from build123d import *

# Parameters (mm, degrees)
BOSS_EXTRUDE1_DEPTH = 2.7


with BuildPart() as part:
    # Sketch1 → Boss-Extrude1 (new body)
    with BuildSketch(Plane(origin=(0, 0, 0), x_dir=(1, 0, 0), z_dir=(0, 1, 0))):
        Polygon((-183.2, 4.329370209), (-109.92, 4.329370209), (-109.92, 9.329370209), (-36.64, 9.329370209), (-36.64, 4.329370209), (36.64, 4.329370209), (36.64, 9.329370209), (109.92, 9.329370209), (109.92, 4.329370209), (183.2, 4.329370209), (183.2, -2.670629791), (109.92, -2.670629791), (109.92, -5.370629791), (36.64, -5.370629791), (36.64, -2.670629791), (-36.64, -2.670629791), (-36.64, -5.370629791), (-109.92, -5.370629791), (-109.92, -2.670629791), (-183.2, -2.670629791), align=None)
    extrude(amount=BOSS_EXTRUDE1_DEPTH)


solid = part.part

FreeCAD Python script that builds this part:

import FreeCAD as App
import Part
import Sketcher
from FreeCAD import Vector

doc = App.newDocument("Part")
body = doc.addObject("PartDesign::Body", "Body")

# Sketch on XZ plane
sketch1 = body.newObject("Sketcher::SketchObject", "Sketch")
sketch1.AttachmentSupport = (doc.getObject("XZ_Plane"), [""])
sketch1.MapMode = "FlatFace"
sketch1.addGeometry(Part.LineSegment(Vector(-109.9, -4.3, 0), Vector(-183.2, -4.3, 0)), False)
sketch1.addGeometry(Part.LineSegment(Vector(-183.2, -4.3, 0), Vector(-183.2, 2.7, 0)), False)
sketch1.addGeometry(Part.LineSegment(Vector(-183.2, 2.7, 0), Vector(-109.9, 2.7, 0)), False)
sketch1.addGeometry(Part.LineSegment(Vector(-109.9, 2.7, 0), Vector(-109.9, 5.4, 0)), False)
sketch1.addGeometry(Part.LineSegment(Vector(-109.9, 5.4, 0), Vector(-36.6, 5.4, 0)), False)
sketch1.addGeometry(Part.LineSegment(Vector(-36.6, 5.4, 0), Vector(-36.6, 2.7, 0)), False)
sketch1.addGeometry(Part.LineSegment(Vector(-36.6, 2.7, 0), Vector(36.6, 2.7, 0)), False)
sketch1.addGeometry(Part.LineSegment(Vector(36.6, 2.7, 0), Vector(36.6, 5.4, 0)), False)
sketch1.addGeometry(Part.LineSegment(Vector(36.6, 5.4, 0), Vector(109.9, 5.4, 0)), False)
sketch1.addGeometry(Part.LineSegment(Vector(109.9, 5.4, 0), Vector(109.9, 2.7, 0)), False)
sketch1.addGeometry(Part.LineSegment(Vector(109.9, 2.7, 0), Vector(183.2, 2.7, 0)), False)
sketch1.addGeometry(Part.LineSegment(Vector(183.2, 2.7, 0), Vector(183.2, -4.3, 0)), False)
sketch1.addGeometry(Part.LineSegment(Vector(183.2, -4.3, 0), Vector(109.9, -4.3, 0)), False)
sketch1.addGeometry(Part.LineSegment(Vector(109.9, -4.3, 0), Vector(109.9, -9.3, 0)), False)
sketch1.addGeometry(Part.LineSegment(Vector(109.9, -9.3, 0), Vector(36.6, -9.3, 0)), False)
sketch1.addGeometry(Part.LineSegment(Vector(36.6, -9.3, 0), Vector(36.6, -4.3, 0)), False)
sketch1.addGeometry(Part.LineSegment(Vector(36.6, -4.3, 0), Vector(-36.6, -4.3, 0)), False)
sketch1.addGeometry(Part.LineSegment(Vector(-36.6, -4.3, 0), Vector(-36.6, -9.3, 0)), False)
sketch1.addGeometry(Part.LineSegment(Vector(-36.6, -9.3, 0), Vector(-109.9, -9.3, 0)), False)
sketch1.addGeometry(Part.LineSegment(Vector(-109.9, -9.3, 0), Vector(-109.9, -4.3, 0)), False)
sketch1.addConstraint(Sketcher.Constraint("Coincident", 0, 2, 1, 1))
sketch1.addConstraint(Sketcher.Constraint("Coincident", 1, 2, 2, 1))
sketch1.addConstraint(Sketcher.Constraint("Coincident", 2, 2, 3, 1))
sketch1.addConstraint(Sketcher.Constraint("Coincident", 3, 2, 4, 1))
sketch1.addConstraint(Sketcher.Constraint("Coincident", 4, 2, 5, 1))
sketch1.addConstraint(Sketcher.Constraint("Coincident", 5, 2, 6, 1))
sketch1.addConstraint(Sketcher.Constraint("Coincident", 6, 2, 7, 1))
sketch1.addConstraint(Sketcher.Constraint("Coincident", 7, 2, 8, 1))
sketch1.addConstraint(Sketcher.Constraint("Coincident", 8, 2, 9, 1))
sketch1.addConstraint(Sketcher.Constraint("Coincident", 9, 2, 10, 1))
sketch1.addConstraint(Sketcher.Constraint("Coincident", 10, 2, 11, 1))
sketch1.addConstraint(Sketcher.Constraint("Coincident", 11, 2, 12, 1))
sketch1.addConstraint(Sketcher.Constraint("Coincident", 12, 2, 13, 1))
sketch1.addConstraint(Sketcher.Constraint("Coincident", 13, 2, 14, 1))
sketch1.addConstraint(Sketcher.Constraint("Coincident", 14, 2, 15, 1))
sketch1.addConstraint(Sketcher.Constraint("Coincident", 15, 2, 16, 1))
sketch1.addConstraint(Sketcher.Constraint("Coincident", 16, 2, 17, 1))
sketch1.addConstraint(Sketcher.Constraint("Coincident", 17, 2, 18, 1))
sketch1.addConstraint(Sketcher.Constraint("Coincident", 18, 2, 19, 1))
sketch1.addConstraint(Sketcher.Constraint("Coincident", 19, 2, 0, 1))
sketch1.addConstraint(Sketcher.Constraint("Horizontal", 0))
sketch1.addConstraint(Sketcher.Constraint("Vertical", 1))
sketch1.addConstraint(Sketcher.Constraint("Horizontal", 2))
sketch1.addConstraint(Sketcher.Constraint("Vertical", 3))
sketch1.addConstraint(Sketcher.Constraint("Horizontal", 4))
sketch1.addConstraint(Sketcher.Constraint("Vertical", 5))
sketch1.addConstraint(Sketcher.Constraint("Horizontal", 6))
sketch1.addConstraint(Sketcher.Constraint("Vertical", 7))
sketch1.addConstraint(Sketcher.Constraint("Horizontal", 8))
sketch1.addConstraint(Sketcher.Constraint("Vertical", 9))
sketch1.addConstraint(Sketcher.Constraint("Horizontal", 10))
sketch1.addConstraint(Sketcher.Constraint("Vertical", 11))
sketch1.addConstraint(Sketcher.Constraint("Horizontal", 12))
sketch1.addConstraint(Sketcher.Constraint("Vertical", 13))
sketch1.addConstraint(Sketcher.Constraint("Horizontal", 14))
sketch1.addConstraint(Sketcher.Constraint("Vertical", 15))
sketch1.addConstraint(Sketcher.Constraint("Horizontal", 16))
sketch1.addConstraint(Sketcher.Constraint("Vertical", 17))
sketch1.addConstraint(Sketcher.Constraint("Horizontal", 18))
sketch1.addConstraint(Sketcher.Constraint("Vertical", 19))
sketch1.addConstraint(Sketcher.Constraint("Symmetric", 4, 2, 7, 2, -2))
sketch1.addConstraint(Sketcher.Constraint("Symmetric", 2, 2, 9, 2, -2))
sketch1.addConstraint(Sketcher.Constraint("Symmetric", 0, 2, 11, 2, -2))
sketch1.addConstraint(Sketcher.Constraint("Symmetric", 14, 2, 17, 2, -2))
sketch1.addConstraint(Sketcher.Constraint("Horizontal", 2, 2, 5, 2))
sketch1.addConstraint(Sketcher.Constraint("Horizontal", 12, 2, 15, 2))
sketch1.addConstraint(Sketcher.Constraint("Vertical", 9, 2, 12, 2))
sketch1.addConstraint(Sketcher.Constraint("Vertical", 7, 2, 14, 2))
sketch1.addConstraint(Sketcher.Constraint("Vertical", 3, 2, 18, 2))
sketch1.addConstraint(Sketcher.Constraint("Equal", 2, 4))
sketch1.addConstraint(Sketcher.Constraint("Equal", 4, 6))
sketch1.addConstraint(Sketcher.Constraint("DistanceY", 1, 1, 1, 2, 7.0))
sketch1.addConstraint(Sketcher.Constraint("DistanceY", 13, 2, 13, 1, 5.0))
sketch1.addConstraint(Sketcher.Constraint("DistanceY", 3, 1, 3, 2, 2.7))
sketch1.addConstraint(Sketcher.Constraint("DistanceX", 0, 2, 0, 1, 73.28))
sketch1.addConstraint(Sketcher.Constraint("DistanceY", 0, 2, -1, 1, 4.32937))
pad1 = body.newObject("PartDesign::Pad", "Pad")
pad1.Profile = sketch1
pad1.Length = 2.7
pad1.Reversed = True

doc.recompute()
